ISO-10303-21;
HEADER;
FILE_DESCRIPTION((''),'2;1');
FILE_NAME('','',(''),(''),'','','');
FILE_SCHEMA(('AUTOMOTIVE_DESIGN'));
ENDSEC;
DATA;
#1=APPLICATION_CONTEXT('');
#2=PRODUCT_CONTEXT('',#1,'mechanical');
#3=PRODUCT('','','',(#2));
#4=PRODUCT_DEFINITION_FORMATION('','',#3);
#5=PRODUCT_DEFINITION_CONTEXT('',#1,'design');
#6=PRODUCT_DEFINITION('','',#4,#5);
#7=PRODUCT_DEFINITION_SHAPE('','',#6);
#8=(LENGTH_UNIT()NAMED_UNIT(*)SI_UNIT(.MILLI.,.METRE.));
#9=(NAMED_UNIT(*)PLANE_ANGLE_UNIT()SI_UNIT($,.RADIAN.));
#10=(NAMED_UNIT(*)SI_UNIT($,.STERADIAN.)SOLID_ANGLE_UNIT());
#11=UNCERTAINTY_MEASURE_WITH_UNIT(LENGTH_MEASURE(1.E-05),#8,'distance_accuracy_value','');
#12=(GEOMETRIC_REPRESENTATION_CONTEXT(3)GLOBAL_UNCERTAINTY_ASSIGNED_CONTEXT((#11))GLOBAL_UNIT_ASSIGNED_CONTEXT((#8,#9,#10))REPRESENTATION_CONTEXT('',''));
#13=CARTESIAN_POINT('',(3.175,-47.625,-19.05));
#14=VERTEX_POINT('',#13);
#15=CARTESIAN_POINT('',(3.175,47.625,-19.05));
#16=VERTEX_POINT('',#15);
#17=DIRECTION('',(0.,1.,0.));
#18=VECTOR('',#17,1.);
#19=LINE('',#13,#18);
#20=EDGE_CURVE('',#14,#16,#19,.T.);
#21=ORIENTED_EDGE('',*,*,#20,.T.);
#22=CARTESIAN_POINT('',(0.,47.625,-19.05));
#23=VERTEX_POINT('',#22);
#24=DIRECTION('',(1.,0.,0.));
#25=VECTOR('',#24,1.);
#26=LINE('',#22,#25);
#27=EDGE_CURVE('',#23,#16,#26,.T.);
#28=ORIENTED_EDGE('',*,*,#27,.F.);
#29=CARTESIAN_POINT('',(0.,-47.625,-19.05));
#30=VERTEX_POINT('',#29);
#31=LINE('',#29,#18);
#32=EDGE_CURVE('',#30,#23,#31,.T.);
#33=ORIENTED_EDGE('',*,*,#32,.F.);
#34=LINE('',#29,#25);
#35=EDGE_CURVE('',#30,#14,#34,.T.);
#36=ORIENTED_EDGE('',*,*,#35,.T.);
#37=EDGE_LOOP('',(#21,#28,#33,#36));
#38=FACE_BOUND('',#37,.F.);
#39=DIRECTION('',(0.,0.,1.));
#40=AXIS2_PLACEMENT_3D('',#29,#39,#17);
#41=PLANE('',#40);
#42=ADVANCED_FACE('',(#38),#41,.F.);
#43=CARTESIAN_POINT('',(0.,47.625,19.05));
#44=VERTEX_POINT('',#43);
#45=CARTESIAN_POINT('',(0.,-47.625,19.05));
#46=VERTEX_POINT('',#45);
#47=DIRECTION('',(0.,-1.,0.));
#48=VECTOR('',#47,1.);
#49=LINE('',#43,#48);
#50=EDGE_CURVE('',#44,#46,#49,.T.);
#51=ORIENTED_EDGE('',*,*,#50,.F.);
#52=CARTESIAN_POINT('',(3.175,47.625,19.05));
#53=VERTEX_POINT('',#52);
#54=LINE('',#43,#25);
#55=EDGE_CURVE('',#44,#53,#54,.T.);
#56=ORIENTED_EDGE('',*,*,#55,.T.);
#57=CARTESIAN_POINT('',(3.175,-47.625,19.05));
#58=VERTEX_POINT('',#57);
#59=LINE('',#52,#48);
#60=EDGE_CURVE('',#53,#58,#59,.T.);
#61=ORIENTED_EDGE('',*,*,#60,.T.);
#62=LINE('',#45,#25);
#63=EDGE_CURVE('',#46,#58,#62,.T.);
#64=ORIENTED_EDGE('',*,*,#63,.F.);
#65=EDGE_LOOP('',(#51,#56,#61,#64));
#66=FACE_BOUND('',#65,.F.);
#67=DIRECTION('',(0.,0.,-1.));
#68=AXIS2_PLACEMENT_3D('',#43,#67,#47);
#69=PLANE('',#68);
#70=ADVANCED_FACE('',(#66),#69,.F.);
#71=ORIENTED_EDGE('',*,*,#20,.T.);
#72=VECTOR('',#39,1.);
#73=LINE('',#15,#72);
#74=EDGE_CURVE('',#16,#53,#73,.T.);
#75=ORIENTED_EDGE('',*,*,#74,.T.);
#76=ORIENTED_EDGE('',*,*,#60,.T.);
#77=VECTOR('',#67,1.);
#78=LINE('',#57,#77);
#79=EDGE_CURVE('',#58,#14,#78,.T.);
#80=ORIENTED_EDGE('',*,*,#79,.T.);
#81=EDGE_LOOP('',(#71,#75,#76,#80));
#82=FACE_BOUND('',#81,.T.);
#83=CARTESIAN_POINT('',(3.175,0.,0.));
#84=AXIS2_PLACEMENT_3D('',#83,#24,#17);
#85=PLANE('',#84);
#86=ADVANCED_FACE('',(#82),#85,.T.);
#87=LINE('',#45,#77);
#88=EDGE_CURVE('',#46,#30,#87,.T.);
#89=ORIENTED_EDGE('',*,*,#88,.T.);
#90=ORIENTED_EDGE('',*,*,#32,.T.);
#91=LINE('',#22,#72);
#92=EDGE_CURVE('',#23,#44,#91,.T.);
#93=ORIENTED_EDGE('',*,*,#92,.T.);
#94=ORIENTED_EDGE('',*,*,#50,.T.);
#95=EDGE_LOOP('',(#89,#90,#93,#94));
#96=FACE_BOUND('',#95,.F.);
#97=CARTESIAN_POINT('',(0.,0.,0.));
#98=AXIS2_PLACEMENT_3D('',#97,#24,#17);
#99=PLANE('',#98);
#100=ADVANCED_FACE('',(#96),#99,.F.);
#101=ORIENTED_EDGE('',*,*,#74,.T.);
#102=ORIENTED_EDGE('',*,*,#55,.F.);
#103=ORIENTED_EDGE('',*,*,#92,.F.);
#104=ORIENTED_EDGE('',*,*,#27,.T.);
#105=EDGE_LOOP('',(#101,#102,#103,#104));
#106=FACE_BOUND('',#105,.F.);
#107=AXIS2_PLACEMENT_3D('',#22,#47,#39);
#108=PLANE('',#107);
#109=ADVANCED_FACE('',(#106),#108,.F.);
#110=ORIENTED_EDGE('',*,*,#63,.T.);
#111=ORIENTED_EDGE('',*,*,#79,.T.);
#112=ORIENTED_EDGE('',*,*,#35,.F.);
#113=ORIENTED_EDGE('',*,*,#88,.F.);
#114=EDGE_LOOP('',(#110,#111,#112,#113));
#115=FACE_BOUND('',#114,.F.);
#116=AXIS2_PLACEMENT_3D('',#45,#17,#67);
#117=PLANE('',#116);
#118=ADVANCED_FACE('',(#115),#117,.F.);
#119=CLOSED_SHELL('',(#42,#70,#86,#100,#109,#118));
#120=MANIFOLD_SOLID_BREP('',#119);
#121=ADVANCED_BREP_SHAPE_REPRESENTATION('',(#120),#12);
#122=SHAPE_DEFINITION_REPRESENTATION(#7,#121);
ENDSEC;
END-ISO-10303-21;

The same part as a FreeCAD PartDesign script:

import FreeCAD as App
import Part
import Sketcher
Q = App.Units.Quantity

doc = App.newDocument("Part")
body = doc.addObject("PartDesign::Body", "Body")

# Sketch on YZ plane
sketch1 = body.newObject("Sketcher::SketchObject", "Sketch")
sketch1.AttachmentSupport = (doc.getObject("YZ_Plane"), [""])
sketch1.MapMode = "FlatFace"
sketch1.addGeometry(Part.LineSegment(App.Vector(48, -19, 0), App.Vector(48, 19, 0)), False)
sketch1.addGeometry(Part.LineSegment(App.Vector(48, 19, 0), App.Vector(-48, 19, 0)), False)
sketch1.addGeometry(Part.LineSegment(App.Vector(-48, 19, 0), App.Vector(-48, -19, 0)), False)
sketch1.addGeometry(Part.LineSegment(App.Vector(-48, -19, 0), App.Vector(48, -19, 0)), False)
sketch1.addConstraint(Sketcher.Constraint("Coincident", 0, 2, 1, 1))
sketch1.addConstraint(Sketcher.Constraint("Coincident", 1, 2, 2, 1))
sketch1.addConstraint(Sketcher.Constraint("Coincident", 2, 2, 3, 1))
sketch1.addConstraint(Sketcher.Constraint("Coincident", 3, 2, 0, 1))
sketch1.addConstraint(Sketcher.Constraint("Vertical", 0))
sketch1.addConstraint(Sketcher.Constraint("Horizontal", 1))
sketch1.addConstraint(Sketcher.Constraint("Vertical", 2))
sketch1.addConstraint(Sketcher.Constraint("Horizontal", 3))
sketch1.addConstraint(Sketcher.Constraint("Symmetric", 0, 2, 2, 2, -1, 1))
sketch1.addConstraint(Sketcher.Constraint("DistanceY", 0, 1, 0, 2, Q("1.5 in")))
sketch1.addConstraint(Sketcher.Constraint("DistanceX", 1, 2, 1, 1, Q("3.75 in")))
pad1 = body.newObject("PartDesign::Pad", "Pad")
pad1.Profile = sketch1
pad1.Length = Q("0.125 in")

doc.recompute()
